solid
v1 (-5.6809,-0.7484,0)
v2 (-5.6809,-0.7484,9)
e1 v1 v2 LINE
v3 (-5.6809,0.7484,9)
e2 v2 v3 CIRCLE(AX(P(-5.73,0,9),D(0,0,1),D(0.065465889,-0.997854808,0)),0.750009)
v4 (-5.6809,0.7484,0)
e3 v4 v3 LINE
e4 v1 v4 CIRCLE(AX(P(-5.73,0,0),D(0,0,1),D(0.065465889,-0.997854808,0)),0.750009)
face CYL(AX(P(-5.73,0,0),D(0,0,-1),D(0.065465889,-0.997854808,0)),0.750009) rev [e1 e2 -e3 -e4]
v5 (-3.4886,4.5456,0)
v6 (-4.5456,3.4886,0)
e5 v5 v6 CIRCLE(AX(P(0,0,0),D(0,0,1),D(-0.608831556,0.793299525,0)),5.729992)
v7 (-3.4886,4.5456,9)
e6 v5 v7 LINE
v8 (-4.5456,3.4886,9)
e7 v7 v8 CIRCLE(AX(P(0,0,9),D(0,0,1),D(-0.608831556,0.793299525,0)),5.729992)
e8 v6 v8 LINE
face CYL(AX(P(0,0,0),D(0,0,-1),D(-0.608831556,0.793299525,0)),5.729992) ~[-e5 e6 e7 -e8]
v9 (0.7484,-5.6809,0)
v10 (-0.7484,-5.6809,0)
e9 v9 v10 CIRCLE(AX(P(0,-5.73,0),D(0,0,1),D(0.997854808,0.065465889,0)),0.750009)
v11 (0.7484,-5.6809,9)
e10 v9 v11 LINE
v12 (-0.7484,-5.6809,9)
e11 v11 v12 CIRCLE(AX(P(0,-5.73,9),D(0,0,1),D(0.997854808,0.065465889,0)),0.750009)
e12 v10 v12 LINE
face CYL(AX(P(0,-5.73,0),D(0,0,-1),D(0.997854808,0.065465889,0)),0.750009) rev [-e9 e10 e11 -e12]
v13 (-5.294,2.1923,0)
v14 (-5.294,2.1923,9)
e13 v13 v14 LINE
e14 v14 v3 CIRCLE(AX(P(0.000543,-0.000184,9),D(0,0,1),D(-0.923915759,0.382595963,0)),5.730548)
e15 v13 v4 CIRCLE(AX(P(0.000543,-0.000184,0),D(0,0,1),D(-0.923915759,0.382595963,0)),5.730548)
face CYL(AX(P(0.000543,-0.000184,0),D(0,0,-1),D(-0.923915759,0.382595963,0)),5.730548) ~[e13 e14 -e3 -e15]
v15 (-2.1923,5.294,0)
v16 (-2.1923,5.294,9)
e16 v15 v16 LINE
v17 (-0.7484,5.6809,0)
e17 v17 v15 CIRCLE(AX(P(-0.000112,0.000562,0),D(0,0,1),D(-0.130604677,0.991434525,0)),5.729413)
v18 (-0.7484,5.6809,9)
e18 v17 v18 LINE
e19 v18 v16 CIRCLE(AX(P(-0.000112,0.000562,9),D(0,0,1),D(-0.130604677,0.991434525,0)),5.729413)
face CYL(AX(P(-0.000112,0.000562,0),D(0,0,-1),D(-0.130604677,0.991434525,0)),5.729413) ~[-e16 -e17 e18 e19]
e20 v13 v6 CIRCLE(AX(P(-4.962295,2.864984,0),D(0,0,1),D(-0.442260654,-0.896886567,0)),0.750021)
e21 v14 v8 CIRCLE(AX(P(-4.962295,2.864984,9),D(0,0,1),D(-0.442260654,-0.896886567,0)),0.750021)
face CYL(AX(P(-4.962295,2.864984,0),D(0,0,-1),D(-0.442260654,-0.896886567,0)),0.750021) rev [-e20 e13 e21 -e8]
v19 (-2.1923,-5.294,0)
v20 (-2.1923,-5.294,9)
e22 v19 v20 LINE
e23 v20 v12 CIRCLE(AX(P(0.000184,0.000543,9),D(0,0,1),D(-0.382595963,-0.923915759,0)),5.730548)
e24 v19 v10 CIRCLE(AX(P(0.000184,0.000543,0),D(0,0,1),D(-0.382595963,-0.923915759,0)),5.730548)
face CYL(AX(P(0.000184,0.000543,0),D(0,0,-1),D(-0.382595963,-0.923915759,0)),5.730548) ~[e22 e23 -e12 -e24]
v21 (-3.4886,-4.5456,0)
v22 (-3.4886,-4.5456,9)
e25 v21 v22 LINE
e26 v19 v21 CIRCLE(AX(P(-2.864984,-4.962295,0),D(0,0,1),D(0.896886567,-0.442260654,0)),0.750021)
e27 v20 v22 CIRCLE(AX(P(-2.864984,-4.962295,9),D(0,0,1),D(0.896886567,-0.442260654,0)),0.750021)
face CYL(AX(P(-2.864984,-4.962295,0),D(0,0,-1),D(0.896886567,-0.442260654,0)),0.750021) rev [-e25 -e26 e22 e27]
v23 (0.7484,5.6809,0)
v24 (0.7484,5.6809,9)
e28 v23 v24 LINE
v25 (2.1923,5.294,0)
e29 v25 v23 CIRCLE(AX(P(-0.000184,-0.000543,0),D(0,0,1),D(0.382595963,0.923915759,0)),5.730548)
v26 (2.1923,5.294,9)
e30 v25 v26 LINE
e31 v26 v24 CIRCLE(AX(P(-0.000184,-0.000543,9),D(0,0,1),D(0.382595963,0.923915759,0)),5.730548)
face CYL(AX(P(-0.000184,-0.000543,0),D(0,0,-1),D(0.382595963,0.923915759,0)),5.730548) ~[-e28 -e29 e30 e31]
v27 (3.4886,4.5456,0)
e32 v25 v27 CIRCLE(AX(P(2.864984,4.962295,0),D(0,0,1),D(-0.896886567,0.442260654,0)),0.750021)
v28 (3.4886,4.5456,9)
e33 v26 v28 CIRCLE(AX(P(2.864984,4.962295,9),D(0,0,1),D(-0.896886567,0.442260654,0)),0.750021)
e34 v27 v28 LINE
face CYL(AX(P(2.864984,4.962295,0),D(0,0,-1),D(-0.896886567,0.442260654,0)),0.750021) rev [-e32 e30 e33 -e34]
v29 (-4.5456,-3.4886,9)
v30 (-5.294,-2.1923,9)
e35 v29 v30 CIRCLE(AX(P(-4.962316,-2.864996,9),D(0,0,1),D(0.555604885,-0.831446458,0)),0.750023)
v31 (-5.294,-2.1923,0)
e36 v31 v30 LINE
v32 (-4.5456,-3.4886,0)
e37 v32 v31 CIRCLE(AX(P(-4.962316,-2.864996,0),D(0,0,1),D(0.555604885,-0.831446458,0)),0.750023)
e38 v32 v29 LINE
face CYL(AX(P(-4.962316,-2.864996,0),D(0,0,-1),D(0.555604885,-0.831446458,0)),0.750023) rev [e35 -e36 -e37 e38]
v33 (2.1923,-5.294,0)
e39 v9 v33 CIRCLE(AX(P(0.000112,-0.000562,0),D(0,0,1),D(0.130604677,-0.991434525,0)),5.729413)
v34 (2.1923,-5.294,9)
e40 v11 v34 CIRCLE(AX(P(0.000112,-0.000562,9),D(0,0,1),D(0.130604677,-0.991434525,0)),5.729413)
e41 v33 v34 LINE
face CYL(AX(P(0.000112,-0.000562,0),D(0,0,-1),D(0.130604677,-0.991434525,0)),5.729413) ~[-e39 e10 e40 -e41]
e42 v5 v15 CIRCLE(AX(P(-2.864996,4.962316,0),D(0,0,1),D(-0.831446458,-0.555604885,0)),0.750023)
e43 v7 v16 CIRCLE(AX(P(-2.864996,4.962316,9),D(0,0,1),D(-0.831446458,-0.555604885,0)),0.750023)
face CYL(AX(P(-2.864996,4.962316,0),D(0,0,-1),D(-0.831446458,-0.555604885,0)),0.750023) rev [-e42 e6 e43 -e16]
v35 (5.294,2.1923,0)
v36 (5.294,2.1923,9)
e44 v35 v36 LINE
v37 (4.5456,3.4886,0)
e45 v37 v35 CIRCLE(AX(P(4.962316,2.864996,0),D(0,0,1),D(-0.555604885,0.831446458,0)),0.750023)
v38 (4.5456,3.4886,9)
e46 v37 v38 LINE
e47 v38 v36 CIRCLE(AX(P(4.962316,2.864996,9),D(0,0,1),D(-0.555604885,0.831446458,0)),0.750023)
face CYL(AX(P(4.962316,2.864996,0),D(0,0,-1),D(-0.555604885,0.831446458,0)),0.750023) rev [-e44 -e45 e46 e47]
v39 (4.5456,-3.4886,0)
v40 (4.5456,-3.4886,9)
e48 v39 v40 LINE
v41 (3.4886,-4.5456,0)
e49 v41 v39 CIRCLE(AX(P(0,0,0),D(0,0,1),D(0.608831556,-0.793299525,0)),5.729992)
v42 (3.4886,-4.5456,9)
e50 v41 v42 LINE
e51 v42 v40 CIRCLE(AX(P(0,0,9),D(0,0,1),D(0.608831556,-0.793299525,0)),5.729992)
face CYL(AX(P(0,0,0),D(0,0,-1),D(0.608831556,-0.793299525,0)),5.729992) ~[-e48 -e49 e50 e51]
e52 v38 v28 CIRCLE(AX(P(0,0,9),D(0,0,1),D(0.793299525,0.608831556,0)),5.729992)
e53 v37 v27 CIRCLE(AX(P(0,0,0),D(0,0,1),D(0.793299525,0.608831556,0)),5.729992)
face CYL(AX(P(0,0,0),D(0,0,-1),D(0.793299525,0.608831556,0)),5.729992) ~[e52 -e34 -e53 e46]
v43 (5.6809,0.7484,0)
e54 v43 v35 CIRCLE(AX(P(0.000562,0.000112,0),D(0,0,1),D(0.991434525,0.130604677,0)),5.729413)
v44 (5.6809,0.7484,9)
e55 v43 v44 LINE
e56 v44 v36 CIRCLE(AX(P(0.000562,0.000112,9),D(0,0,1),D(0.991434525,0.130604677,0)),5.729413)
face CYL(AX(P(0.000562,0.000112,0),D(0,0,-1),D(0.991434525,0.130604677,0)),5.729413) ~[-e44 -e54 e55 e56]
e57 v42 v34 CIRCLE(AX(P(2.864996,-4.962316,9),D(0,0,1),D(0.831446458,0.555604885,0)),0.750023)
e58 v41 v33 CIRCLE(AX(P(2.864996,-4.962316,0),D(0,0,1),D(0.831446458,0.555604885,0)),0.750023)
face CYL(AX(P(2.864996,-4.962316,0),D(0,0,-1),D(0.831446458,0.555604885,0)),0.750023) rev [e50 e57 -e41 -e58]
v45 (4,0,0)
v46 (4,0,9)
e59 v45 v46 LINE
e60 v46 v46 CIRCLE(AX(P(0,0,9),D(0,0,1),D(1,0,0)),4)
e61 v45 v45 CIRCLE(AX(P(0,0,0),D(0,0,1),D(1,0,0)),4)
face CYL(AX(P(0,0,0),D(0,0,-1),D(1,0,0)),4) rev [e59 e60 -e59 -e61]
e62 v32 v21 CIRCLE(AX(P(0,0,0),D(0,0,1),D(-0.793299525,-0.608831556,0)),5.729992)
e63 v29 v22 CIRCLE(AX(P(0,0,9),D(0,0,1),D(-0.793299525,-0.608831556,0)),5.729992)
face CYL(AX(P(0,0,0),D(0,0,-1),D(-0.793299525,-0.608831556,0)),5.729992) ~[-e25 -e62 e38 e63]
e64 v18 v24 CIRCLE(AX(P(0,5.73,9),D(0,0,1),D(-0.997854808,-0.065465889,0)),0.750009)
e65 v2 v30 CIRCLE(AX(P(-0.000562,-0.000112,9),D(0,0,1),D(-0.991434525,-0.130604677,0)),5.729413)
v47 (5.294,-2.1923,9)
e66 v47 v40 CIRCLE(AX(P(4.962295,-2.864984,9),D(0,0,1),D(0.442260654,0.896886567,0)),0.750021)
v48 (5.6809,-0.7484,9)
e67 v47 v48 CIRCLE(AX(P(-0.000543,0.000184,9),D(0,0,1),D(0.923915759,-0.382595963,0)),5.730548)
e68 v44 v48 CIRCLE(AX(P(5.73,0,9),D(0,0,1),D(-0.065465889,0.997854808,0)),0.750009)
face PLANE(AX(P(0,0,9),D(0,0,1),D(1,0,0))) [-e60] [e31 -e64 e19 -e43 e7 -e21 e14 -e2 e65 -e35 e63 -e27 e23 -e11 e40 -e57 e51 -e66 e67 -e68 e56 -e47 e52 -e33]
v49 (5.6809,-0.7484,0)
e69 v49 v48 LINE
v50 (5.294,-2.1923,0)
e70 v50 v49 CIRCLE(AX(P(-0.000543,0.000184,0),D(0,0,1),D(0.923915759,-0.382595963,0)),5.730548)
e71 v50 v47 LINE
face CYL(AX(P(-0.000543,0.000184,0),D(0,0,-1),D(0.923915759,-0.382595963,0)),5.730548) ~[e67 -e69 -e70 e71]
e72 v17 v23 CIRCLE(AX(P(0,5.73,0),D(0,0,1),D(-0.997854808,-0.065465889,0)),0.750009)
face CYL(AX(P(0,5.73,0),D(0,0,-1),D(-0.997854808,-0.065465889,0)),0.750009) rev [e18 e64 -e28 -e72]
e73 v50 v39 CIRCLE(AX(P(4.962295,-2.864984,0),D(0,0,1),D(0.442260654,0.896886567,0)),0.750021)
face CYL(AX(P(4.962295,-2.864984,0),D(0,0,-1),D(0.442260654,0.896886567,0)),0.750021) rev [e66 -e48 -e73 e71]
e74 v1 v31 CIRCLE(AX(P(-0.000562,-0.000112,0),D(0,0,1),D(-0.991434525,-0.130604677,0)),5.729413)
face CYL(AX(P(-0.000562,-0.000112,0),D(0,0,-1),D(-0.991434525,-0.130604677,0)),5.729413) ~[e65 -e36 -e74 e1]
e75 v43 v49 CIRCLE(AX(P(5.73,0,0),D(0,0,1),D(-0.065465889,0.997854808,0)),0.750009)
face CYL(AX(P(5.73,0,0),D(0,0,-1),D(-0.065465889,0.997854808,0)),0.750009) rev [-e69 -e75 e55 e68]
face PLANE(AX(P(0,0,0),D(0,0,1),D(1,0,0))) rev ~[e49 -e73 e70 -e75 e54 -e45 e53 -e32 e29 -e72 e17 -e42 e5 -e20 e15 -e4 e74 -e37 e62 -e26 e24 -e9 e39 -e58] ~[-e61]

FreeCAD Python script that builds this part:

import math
import FreeCAD as App
import Part
import Sketcher

doc = App.newDocument("Part")
body = doc.addObject("PartDesign::Body", "Body")

# Sketch on XY plane
sketch1 = body.newObject("Sketcher::SketchObject", "Sketch")
sketch1.AttachmentSupport = (doc.getObject("XY_Plane"), [""])
sketch1.MapMode = "FlatFace"
sketch1.addGeometry(Part.ArcOfCircle(Part.Circle(App.Vector(0, 5.7, 0), App.Vector(0, 0, 1), 0.8), math.radians(-176), math.radians(-4)), False)
sketch1.addGeometry(Part.ArcOfCircle(Part.Circle(App.Vector(0, 0, 0), App.Vector(0, 0, 1), 5.7), math.radians(97.5), math.radians(112.49)), False)
sketch1.addGeometry(Part.ArcOfCircle(Part.Circle(App.Vector(-2.9, 5, 0), App.Vector(0, 0, 1), 0.8), math.radians(-146), math.radians(26)), False)
sketch1.addGeometry(Part.ArcOfCircle(Part.Circle(App.Vector(0, 0, 0), App.Vector(0, 0, 1), 5.7), math.radians(127.51), math.radians(142.49)), False)
sketch1.addGeometry(Part.ArcOfCircle(Part.Circle(App.Vector(-5, 2.9, 0), App.Vector(0, 0, 1), 0.8), math.radians(-116), math.radians(56)), False)
sketch1.addGeometry(Part.ArcOfCircle(Part.Circle(App.Vector(0, 0, 0), App.Vector(0, 0, 1), 5.7), math.radians(157.51), math.radians(172.5)), False)
sketch1.addGeometry(Part.ArcOfCircle(Part.Circle(App.Vector(-5.7, 0, 0), App.Vector(0, 0, 1), 0.8), math.radians(-86), math.radians(86)), False)
sketch1.addGeometry(Part.ArcOfCircle(Part.Circle(App.Vector(0, 0, 0), App.Vector(0, 0, 1), 5.7), math.radians(-172.5), math.radians(-157.51)), False)
sketch1.addGeometry(Part.ArcOfCircle(Part.Circle(App.Vector(-5, -2.9, 0), App.Vector(0, 0, 1), 0.8), math.radians(-56), math.radians(116)), False)
sketch1.addGeometry(Part.ArcOfCircle(Part.Circle(App.Vector(0, 0, 0), App.Vector(0, 0, 1), 5.7), math.radians(-142.49), math.radians(-127.51)), False)
sketch1.addGeometry(Part.ArcOfCircle(Part.Circle(App.Vector(-2.9, -5, 0), App.Vector(0, 0, 1), 0.8), math.radians(-26), math.radians(146)), False)
sketch1.addGeometry(Part.ArcOfCircle(Part.Circle(App.Vector(0, 0, 0), App.Vector(0, 0, 1), 5.7), math.radians(-112.49), math.radians(-97.5)), False)
sketch1.addGeometry(Part.ArcOfCircle(Part.Circle(App.Vector(0, -5.7, 0), App.Vector(0, 0, 1), 0.8), math.radians(4), math.radians(176)), False)
sketch1.addGeometry(Part.ArcOfCircle(Part.Circle(App.Vector(0, 0, 0), App.Vector(0, 0, 1), 5.7), math.radians(-82.5), math.radians(-67.51)), False)
sketch1.addGeometry(Part.ArcOfCircle(Part.Circle(App.Vector(2.9, -5, 0), App.Vector(0, 0, 1), 0.8), math.radians(34), math.radians(206)), False)
sketch1.addGeometry(Part.ArcOfCircle(Part.Circle(App.Vector(0, 0, 0), App.Vector(0, 0, 1), 5.7), math.radians(-52.49), math.radians(-37.51)), False)
sketch1.addGeometry(Part.ArcOfCircle(Part.Circle(App.Vector(5, -2.9, 0), App.Vector(0, 0, 1), 0.8), math.radians(64), math.radians(236)), False)
sketch1.addGeometry(Part.ArcOfCircle(Part.Circle(App.Vector(0, 0, 0), App.Vector(0, 0, 1), 5.7), math.radians(-22.49), math.radians(-7.5)), False)
sketch1.addGeometry(Part.ArcOfCircle(Part.Circle(App.Vector(5.7, 0, 0), App.Vector(0, 0, 1), 0.8), math.radians(94), math.radians(266)), False)
sketch1.addGeometry(Part.ArcOfCircle(Part.Circle(App.Vector(0, 0, 0), App.Vector(0, 0, 1), 5.7), math.radians(7.5), math.radians(22.49)), False)
sketch1.addGeometry(Part.ArcOfCircle(Part.Circle(App.Vector(5, 2.9, 0), App.Vector(0, 0, 1), 0.8), math.radians(124), math.radians(296)), False)
sketch1.addGeometry(Part.ArcOfCircle(Part.Circle(App.Vector(0, 0, 0), App.Vector(0, 0, 1), 5.7), math.radians(37.51), math.radians(52.49)), False)
sketch1.addGeometry(Part.ArcOfCircle(Part.Circle(App.Vector(2.9, 5, 0), App.Vector(0, 0, 1), 0.8), math.radians(154), math.radians(326)), False)
sketch1.addGeometry(Part.ArcOfCircle(Part.Circle(App.Vector(0, 0, 0), App.Vector(0, 0, 1), 5.7), math.radians(67.51), math.radians(82.5)), False)
sketch1.addGeometry(Part.Circle(App.Vector(0, 0, 0), App.Vector(0, 0, 1), 4), False)
sketch1.addConstraint(Sketcher.Constraint("Coincident", 0, 1, 1, 1))
sketch1.addConstraint(Sketcher.Constraint("Coincident", 1, 2, 2, 2))
sketch1.addConstraint(Sketcher.Constraint("Coincident", 2, 1, 3, 1))
sketch1.addConstraint(Sketcher.Constraint("Coincident", 3, 2, 4, 2))
sketch1.addConstraint(Sketcher.Constraint("Coincident", 4, 1, 5, 1))
sketch1.addConstraint(Sketcher.Constraint("Coincident", 5, 2, 6, 2))
sketch1.addConstraint(Sketcher.Constraint("Coincident", 6, 1, 7, 1))
sketch1.addConstraint(Sketcher.Constraint("Coincident", 7, 2, 8, 2))
sketch1.addConstraint(Sketcher.Constraint("Coincident", 8, 1, 9, 1))
sketch1.addConstraint(Sketcher.Constraint("Coincident", 9, 2, 10, 2))
sketch1.addConstraint(Sketcher.Constraint("Coincident", 10, 1, 11, 1))
sketch1.addConstraint(Sketcher.Constraint("Coincident", 11, 2, 12, 2))
sketch1.addConstraint(Sketcher.Constraint("Coincident", 12, 1, 13, 1))
sketch1.addConstraint(Sketcher.Constraint("Coincident", 13, 2, 14, 2))
sketch1.addConstraint(Sketcher.Constraint("Coincident", 14, 1, 15, 1))
sketch1.addConstraint(Sketcher.Constraint("Coincident", 15, 2, 16, 2))
sketch1.addConstraint(Sketcher.Constraint("Coincident", 16, 1, 17, 1))
sketch1.addConstraint(Sketcher.Constraint("Coincident", 17, 2, 18, 2))
sketch1.addConstraint(Sketcher.Constraint("Coincident", 18, 1, 19, 1))
sketch1.addConstraint(Sketcher.Constraint("Coincident", 19, 2, 20, 2))
sketch1.addConstraint(Sketcher.Constraint("Coincident", 20, 1, 21, 1))
sketch1.addConstraint(Sketcher.Constraint("Coincident", 21, 2, 22, 2))
sketch1.addConstraint(Sketcher.Constraint("Coincident", 22, 1, 23, 1))
sketch1.addConstraint(Sketcher.Constraint("Coincident", 23, 2, 0, 2))
sketch1.addConstraint(Sketcher.Constraint("Coincident", 1, 3, -1, 1))
sketch1.addConstraint(Sketcher.Constraint("Coincident", 3, 3, -1, 1))
sketch1.addConstraint(Sketcher.Constraint("Coincident", 5, 3, -1, 1))
sketch1.addConstraint(Sketcher.Constraint("Coincident", 7, 3, -1, 1))
sketch1.addConstraint(Sketcher.Constraint("Coincident", 9, 3, -1, 1))
sketch1.addConstraint(Sketcher.Constraint("Coincident", 11, 3, -1, 1))
sketch1.addConstraint(Sketcher.Constraint("Coincident", 13, 3, -1, 1))
sketch1.addConstraint(Sketcher.Constraint("Coincident", 15, 3, -1, 1))
sketch1.addConstraint(Sketcher.Constraint("Coincident", 17, 3, -1, 1))
sketch1.addConstraint(Sketcher.Constraint("Coincident", 19, 3, -1, 1))
sketch1.addConstraint(Sketcher.Constraint("Coincident", 21, 3, -1, 1))
sketch1.addConstraint(Sketcher.Constraint("Coincident", 23, 3, -1, 1))
sketch1.addConstraint(Sketcher.Constraint("Coincident", 24, 3, -1, 1))
sketch1.addConstraint(Sketcher.Constraint("Equal", 0, 2))
sketch1.addConstraint(Sketcher.Constraint("Equal", 1, 3))
sketch1.addConstraint(Sketcher.Constraint("Equal", 2, 4))
sketch1.addConstraint(Sketcher.Constraint("Equal", 3, 5))
sketch1.addConstraint(Sketcher.Constraint("Equal", 4, 6))
sketch1.addConstraint(Sketcher.Constraint("Equal", 5, 7))
sketch1.addConstraint(Sketcher.Constraint("Equal", 6, 8))
sketch1.addConstraint(Sketcher.Constraint("Equal", 7, 9))
sketch1.addConstraint(Sketcher.Constraint("Equal", 8, 10))
sketch1.addConstraint(Sketcher.Constraint("Equal", 9, 11))
sketch1.addConstraint(Sketcher.Constraint("Equal", 10, 12))
sketch1.addConstraint(Sketcher.Constraint("Equal", 11, 13))
sketch1.addConstraint(Sketcher.Constraint("Equal", 12, 14))
sketch1.addConstraint(Sketcher.Constraint("Equal", 13, 15))
sketch1.addConstraint(Sketcher.Constraint("Equal", 14, 16))
sketch1.addConstraint(Sketcher.Constraint("Equal", 15, 17))
sketch1.addConstraint(Sketcher.Constraint("Equal", 16, 18))
sketch1.addConstraint(Sketcher.Constraint("Equal", 17, 19))
sketch1.addConstraint(Sketcher.Constraint("Equal", 18, 20))
sketch1.addConstraint(Sketcher.Constraint("Equal", 19, 21))
sketch1.addConstraint(Sketcher.Constraint("Equal", 20, 22))
sketch1.addConstraint(Sketcher.Constraint("Equal", 21, 23))
sketch1.addConstraint(Sketcher.Constraint("Symmetric", 0, 3, 12, 3, -1, 1))
sketch1.addConstraint(Sketcher.Constraint("Symmetric", 2, 3, 14, 3, -1, 1))
sketch1.addConstraint(Sketcher.Constraint("Symmetric", 4, 3, 16, 3, -1, 1))
sketch1.addConstraint(Sketcher.Constraint("Symmetric", 6, 3, 18, 3, -1, 1))
sketch1.addConstraint(Sketcher.Constraint("Symmetric", 8, 3, 20, 3, -1, 1))
sketch1.addConstraint(Sketcher.Constraint("Symmetric", 10, 3, 22, 3, -1, 1))
sketch1.addConstraint(Sketcher.Constraint("Symmetric", 10, 3, 14, 3, -2))
sketch1.addConstraint(Sketcher.Constraint("Symmetric", 8, 3, 16, 3, -2))
sketch1.addConstraint(Sketcher.Constraint("PointOnObject", 0, 3, -2))
sketch1.addConstraint(Sketcher.Constraint("PointOnObject", 6, 3, -1))
sketch1.addConstraint(Sketcher.Constraint("Diameter", 24, 8.0))
sketch1.addConstraint(Sketcher.Constraint("Radius", 0, 0.75))
sketch1.addConstraint(Sketcher.Constraint("Radius", 1, 5.73))
sketch1.addConstraint(Sketcher.Constraint("DistanceY", -1, 1, 0, 3, 5.73))
sketch1.addConstraint(Sketcher.Constraint("DistanceX", 6, 3, -1, 1, 5.73))
sketch1.addConstraint(Sketcher.Constraint("DistanceX", 4, 3, 1, 2, 2.77))
sketch1.addConstraint(Sketcher.Constraint("DistanceY", 4, 1, 2, 3, 2.77))
sketch1.addConstraint(Sketcher.Constraint("DistanceX", 2, 3, -1, 1, 2.865))
sketch1.addConstraint(Sketcher.Constraint("DistanceY", -1, 1, 4, 3, 2.865))
pad1 = body.newObject("PartDesign::Pad", "Pad")
pad1.Profile = sketch1
pad1.Length = 9

doc.recompute()
